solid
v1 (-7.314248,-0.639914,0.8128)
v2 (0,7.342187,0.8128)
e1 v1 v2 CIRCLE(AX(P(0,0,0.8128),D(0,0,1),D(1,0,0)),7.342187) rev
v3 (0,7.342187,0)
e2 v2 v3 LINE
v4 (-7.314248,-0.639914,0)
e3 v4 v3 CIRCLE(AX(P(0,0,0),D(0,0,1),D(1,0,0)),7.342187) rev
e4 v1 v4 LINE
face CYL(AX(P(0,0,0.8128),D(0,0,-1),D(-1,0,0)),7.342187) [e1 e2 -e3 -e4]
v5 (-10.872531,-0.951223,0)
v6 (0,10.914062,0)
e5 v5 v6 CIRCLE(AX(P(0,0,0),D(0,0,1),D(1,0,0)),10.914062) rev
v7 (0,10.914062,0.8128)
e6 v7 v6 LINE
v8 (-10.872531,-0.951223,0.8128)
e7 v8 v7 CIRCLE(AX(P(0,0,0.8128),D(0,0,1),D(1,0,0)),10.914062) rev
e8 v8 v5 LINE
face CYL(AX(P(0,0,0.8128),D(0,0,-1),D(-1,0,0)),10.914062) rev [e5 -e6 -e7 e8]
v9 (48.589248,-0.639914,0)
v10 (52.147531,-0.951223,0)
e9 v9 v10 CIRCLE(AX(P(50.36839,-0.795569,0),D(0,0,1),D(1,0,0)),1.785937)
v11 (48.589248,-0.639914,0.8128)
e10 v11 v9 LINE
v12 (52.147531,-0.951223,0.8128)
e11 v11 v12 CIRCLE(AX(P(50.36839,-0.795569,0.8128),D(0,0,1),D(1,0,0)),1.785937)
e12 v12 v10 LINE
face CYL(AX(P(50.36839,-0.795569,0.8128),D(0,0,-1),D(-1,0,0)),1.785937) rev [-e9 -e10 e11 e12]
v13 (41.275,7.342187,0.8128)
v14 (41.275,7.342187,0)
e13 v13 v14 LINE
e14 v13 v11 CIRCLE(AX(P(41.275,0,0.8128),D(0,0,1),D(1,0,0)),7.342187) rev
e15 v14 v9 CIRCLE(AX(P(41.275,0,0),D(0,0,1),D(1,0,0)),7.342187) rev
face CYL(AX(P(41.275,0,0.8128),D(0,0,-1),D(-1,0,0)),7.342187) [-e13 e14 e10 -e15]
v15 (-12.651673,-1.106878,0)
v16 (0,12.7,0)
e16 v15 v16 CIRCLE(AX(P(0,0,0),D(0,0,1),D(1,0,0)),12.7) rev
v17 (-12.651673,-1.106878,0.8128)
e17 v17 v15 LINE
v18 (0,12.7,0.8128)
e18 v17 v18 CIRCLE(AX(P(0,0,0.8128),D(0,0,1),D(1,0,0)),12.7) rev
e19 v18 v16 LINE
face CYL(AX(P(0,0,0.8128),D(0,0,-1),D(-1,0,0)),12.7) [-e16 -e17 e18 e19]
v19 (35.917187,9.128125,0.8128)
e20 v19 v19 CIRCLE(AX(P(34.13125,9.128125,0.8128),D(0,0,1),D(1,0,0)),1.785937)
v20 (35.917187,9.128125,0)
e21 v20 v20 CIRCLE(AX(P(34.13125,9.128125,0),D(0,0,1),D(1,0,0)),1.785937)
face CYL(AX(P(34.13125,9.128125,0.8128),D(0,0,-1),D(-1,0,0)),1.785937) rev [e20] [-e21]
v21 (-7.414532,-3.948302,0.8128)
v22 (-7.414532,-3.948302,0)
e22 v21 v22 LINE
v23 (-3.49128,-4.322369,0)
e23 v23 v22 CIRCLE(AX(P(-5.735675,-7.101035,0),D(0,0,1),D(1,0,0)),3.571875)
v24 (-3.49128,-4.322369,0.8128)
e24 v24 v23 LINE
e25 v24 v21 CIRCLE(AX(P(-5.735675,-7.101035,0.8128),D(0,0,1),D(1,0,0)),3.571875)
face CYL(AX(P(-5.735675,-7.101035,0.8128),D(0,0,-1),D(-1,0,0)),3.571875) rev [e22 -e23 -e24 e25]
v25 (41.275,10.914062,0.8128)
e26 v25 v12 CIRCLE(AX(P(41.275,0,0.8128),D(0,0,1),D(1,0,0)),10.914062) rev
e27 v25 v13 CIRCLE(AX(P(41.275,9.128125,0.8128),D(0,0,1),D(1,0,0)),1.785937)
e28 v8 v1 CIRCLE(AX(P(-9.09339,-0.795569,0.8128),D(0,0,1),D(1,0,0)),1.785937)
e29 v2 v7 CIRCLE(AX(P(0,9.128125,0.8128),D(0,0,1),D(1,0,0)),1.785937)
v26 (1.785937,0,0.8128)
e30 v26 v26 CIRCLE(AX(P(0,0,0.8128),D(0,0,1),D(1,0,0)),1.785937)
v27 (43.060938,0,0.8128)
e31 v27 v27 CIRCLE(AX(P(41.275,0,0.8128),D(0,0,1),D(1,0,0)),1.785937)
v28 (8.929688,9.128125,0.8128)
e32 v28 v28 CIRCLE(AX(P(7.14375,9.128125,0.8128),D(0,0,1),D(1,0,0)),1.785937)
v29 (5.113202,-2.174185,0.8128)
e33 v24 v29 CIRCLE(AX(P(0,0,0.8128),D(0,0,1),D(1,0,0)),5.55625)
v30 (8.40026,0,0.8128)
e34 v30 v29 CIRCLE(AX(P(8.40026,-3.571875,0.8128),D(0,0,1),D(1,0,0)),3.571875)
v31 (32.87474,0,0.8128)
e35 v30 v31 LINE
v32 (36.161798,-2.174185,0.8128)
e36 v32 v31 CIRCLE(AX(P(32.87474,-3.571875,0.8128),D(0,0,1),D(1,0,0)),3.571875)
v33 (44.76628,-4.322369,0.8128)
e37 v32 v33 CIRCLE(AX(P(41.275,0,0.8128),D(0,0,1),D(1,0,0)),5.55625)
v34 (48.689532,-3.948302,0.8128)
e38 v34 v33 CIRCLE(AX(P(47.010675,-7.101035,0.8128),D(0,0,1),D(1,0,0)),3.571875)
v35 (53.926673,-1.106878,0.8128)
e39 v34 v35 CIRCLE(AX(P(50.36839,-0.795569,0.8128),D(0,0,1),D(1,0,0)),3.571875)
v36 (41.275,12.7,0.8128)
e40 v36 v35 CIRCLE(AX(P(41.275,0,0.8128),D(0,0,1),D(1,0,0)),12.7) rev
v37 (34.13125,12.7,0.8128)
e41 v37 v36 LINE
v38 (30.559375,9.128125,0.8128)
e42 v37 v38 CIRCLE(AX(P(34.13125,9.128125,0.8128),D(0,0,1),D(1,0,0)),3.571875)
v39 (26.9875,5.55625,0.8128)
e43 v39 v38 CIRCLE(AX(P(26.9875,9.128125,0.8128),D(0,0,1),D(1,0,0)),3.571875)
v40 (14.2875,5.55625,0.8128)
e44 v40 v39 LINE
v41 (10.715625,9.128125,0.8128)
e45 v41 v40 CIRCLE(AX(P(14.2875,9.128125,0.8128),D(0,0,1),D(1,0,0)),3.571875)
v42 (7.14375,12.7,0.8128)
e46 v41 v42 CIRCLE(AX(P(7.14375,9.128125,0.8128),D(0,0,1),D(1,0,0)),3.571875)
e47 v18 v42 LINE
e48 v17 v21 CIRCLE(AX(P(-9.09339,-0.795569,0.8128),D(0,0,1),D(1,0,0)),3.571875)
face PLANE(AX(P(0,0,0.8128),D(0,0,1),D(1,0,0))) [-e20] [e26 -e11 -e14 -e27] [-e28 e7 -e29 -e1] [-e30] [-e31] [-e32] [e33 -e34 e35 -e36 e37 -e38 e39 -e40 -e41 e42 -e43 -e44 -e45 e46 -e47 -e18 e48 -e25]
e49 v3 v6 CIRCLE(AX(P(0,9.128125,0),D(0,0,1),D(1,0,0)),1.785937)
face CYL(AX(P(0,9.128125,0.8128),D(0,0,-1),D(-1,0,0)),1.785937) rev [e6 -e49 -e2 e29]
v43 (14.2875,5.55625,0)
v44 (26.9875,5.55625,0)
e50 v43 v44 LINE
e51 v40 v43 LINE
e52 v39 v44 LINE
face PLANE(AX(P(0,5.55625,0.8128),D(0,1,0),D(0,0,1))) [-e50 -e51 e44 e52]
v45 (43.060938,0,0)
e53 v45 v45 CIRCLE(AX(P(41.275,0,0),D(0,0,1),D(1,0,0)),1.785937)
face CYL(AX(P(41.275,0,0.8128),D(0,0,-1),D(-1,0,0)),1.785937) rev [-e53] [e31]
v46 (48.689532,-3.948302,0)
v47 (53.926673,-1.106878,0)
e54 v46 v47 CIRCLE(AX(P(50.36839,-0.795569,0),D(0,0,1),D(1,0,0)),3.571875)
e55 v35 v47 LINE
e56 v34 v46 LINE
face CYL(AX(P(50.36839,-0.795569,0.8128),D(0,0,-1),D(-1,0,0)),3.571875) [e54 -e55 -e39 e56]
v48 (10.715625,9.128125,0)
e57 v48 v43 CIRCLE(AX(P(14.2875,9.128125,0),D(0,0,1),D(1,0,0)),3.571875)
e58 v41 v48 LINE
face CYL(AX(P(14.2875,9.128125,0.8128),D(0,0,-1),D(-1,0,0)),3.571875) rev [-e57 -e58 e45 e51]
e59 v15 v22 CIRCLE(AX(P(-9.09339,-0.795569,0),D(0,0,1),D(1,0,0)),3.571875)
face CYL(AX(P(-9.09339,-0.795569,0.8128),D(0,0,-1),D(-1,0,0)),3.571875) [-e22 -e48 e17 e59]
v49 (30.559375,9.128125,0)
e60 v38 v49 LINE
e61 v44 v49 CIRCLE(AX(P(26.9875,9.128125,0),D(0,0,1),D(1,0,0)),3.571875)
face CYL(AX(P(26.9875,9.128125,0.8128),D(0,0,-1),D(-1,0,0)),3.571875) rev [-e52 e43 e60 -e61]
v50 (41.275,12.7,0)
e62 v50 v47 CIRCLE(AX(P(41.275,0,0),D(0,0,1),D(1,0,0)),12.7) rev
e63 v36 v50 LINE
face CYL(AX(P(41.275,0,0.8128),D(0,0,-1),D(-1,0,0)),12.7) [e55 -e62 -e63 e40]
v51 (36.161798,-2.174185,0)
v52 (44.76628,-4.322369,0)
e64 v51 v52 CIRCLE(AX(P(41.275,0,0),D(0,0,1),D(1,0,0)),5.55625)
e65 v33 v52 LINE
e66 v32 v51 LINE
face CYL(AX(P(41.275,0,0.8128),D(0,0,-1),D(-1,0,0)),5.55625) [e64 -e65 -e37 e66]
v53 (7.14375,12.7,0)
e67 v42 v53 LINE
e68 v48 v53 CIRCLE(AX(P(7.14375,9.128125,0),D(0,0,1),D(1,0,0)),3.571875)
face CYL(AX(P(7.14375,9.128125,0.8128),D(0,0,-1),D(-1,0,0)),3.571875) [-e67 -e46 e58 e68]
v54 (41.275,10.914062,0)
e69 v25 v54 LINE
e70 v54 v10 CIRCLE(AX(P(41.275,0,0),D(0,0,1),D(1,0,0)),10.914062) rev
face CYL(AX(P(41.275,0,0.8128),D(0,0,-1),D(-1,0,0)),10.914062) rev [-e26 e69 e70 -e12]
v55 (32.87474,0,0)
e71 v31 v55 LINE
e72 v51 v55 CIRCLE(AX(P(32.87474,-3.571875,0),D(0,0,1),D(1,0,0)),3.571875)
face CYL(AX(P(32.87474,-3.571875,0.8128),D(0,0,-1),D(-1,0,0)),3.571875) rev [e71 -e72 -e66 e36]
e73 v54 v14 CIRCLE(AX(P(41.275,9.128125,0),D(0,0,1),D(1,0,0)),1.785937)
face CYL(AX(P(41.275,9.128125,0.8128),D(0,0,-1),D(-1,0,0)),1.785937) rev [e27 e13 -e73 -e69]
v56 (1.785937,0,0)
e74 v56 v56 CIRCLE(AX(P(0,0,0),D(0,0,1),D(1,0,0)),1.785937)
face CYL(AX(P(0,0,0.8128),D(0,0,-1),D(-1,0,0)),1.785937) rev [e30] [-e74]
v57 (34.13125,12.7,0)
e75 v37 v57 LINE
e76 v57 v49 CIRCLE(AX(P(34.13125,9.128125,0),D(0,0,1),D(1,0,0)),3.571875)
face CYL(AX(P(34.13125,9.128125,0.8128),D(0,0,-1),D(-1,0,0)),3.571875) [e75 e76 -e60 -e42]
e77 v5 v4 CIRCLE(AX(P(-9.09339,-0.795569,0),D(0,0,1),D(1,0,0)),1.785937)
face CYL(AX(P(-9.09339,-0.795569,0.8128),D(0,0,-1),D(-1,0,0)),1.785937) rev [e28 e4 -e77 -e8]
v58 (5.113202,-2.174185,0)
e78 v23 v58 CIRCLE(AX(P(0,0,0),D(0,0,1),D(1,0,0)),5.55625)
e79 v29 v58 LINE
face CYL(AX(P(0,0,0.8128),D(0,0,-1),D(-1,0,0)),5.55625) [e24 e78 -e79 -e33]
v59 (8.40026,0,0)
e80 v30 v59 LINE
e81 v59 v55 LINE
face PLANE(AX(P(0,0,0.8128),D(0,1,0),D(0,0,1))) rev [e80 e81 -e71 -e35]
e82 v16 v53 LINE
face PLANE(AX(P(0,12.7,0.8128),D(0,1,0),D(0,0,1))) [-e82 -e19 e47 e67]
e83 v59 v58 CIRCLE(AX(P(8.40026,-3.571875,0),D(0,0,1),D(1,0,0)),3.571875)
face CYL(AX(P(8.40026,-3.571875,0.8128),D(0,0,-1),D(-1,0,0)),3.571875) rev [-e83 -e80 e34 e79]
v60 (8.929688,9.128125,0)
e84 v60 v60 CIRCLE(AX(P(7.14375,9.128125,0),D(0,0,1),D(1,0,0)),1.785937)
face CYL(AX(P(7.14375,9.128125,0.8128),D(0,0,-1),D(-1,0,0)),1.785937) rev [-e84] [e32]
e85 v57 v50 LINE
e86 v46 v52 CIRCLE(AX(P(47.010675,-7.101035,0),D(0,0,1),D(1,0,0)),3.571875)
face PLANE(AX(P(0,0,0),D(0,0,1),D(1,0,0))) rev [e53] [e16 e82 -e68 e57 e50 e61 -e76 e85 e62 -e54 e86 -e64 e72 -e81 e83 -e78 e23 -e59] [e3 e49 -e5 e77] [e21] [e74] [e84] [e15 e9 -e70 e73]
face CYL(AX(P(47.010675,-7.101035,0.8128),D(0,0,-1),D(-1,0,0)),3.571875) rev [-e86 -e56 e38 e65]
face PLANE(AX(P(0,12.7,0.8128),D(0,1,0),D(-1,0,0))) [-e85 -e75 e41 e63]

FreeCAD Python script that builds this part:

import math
import FreeCAD as App
import Part
import Sketcher

V = App.Vector
Q = App.Units.Quantity

doc = App.newDocument("Part")
params = doc.addObject("Spreadsheet::Sheet", "Params")
for row, (alias, value) in enumerate([
    ("sketch1_radius", "0.5 in"),
    ("sketch1_diameter", "0.140625 in"),
    ("sketch1_width", "0.5 in"),
    ("sketch1_radius2", "0.140625 in"),
    ("sketch1_radius3", "0.21875 in"),
    ("pad1_length", "0.032 in"),
], start=1):
    params.set(f"A{row}", alias)
    params.set(f"B{row}", "=" + value)
    params.setAlias(f"B{row}", alias)

body = doc.addObject("PartDesign::Body", "Body")

# Sketch on XY plane
sketch1 = doc.addObject("Sketcher::SketchObject", "Sketch")
body.addObject(sketch1)
sketch1.AttachmentSupport = (doc.XY_Plane, [""])
sketch1.MapMode = "FlatFace"
sketch1.addGeometry(Part.ArcOfCircle(Part.Circle(V(8.4, -3.6, 0), V(0, 0, 1), 3.6), math.radians(90), math.radians(157)), False)
sketch1.addGeometry(Part.LineSegment(V(8.4, 0, 0), V(32.9, 0, 0)), False)
sketch1.addGeometry(Part.ArcOfCircle(Part.Circle(V(32.9, -3.6, 0), V(0, 0, 1), 3.6), math.radians(23), math.radians(90)), False)
sketch1.addGeometry(Part.ArcOfCircle(Part.Circle(V(41.3, 0, 0), V(0, 0, 1), 5.6), math.radians(-157), math.radians(-51)), False)
sketch1.addGeometry(Part.ArcOfCircle(Part.Circle(V(47, -7.1, 0), V(0, 0, 1), 3.6), math.radians(62), math.radians(129)), False)
sketch1.addGeometry(Part.ArcOfCircle(Part.Circle(V(50.4, -0.8, 0), V(0, 0, 1), 3.6), math.radians(-118), math.radians(-5)), False)
sketch1.addGeometry(Part.ArcOfCircle(Part.Circle(V(41.3, 0, 0), V(0, 0, 1), 12.7), math.radians(-5), math.radians(90)), False)
sketch1.addGeometry(Part.LineSegment(V(41.3, 12.7, 0), V(34.1, 12.7, 0)), False)
sketch1.addGeometry(Part.ArcOfCircle(Part.Circle(V(34.1, 9.1, 0), V(0, 0, 1), 3.6), math.radians(90), math.radians(180)), False)
sketch1.addGeometry(Part.ArcOfCircle(Part.Circle(V(27, 9.1, 0), V(0, 0, 1), 3.6), math.radians(-90), math.radians(0)), False)
sketch1.addGeometry(Part.LineSegment(V(27, 5.6, 0), V(14.3, 5.6, 0)), False)
sketch1.addGeometry(Part.ArcOfCircle(Part.Circle(V(14.3, 9.1, 0), V(0, 0, 1), 3.6), math.radians(180), math.radians(270)), False)
sketch1.addGeometry(Part.ArcOfCircle(Part.Circle(V(7.1, 9.1, 0), V(0, 0, 1), 3.6), math.radians(0), math.radians(90)), False)
sketch1.addGeometry(Part.LineSegment(V(7.1, 12.7, 0), V(0, 12.7, 0)), False)
sketch1.addGeometry(Part.ArcOfCircle(Part.Circle(V(0, 0, 0), V(0, 0, 1), 12.7), math.radians(90), math.radians(185)), False)
sketch1.addGeometry(Part.ArcOfCircle(Part.Circle(V(-9.1, -0.8, 0), V(0, 0, 1), 3.6), math.radians(-175), math.radians(-62)), False)
sketch1.addGeometry(Part.ArcOfCircle(Part.Circle(V(-5.7, -7.1, 0), V(0, 0, 1), 3.6), math.radians(51), math.radians(118)), False)
sketch1.addGeometry(Part.ArcOfCircle(Part.Circle(V(0, 0, 0), V(0, 0, 1), 5.6), math.radians(-129), math.radians(-23)), False)
sketch1.addGeometry(Part.Circle(V(0, 0, 0), V(0, 0, 1), 1.8), False)
sketch1.addGeometry(Part.Circle(V(41.3, 0, 0), V(0, 0, 1), 1.8), False)
sketch1.addGeometry(Part.ArcOfCircle(Part.Circle(V(41.3, 0, 0), V(0, 0, 1), 10.9), math.radians(-5), math.radians(90)), False)
sketch1.addGeometry(Part.ArcOfCircle(Part.Circle(V(50.4, -0.8, 0), V(0, 0, 1), 1.8), math.radians(175), math.radians(355)), False)
sketch1.addGeometry(Part.ArcOfCircle(Part.Circle(V(41.3, 0, 0), V(0, 0, 1), 7.3), math.radians(-5), math.radians(90)), False)
sketch1.addGeometry(Part.ArcOfCircle(Part.Circle(V(41.3, 9.1, 0), V(0, 0, 1), 1.8), math.radians(90), math.radians(270)), False)
sketch1.addGeometry(Part.ArcOfCircle(Part.Circle(V(0, 0, 0), V(0, 0, 1), 10.9), math.radians(90), math.radians(185)), False)
sketch1.addGeometry(Part.ArcOfCircle(Part.Circle(V(0, 9.1, 0), V(0, 0, 1), 1.8), math.radians(-90), math.radians(90)), False)
sketch1.addGeometry(Part.ArcOfCircle(Part.Circle(V(0, 0, 0), V(0, 0, 1), 7.3), math.radians(90), math.radians(185)), False)
sketch1.addGeometry(Part.ArcOfCircle(Part.Circle(V(-9.1, -0.8, 0), V(0, 0, 1), 1.8), math.radians(-175), math.radians(5)), False)
sketch1.addGeometry(Part.Circle(V(7.1, 9.1, 0), V(0, 0, 1), 1.8), False)
sketch1.addGeometry(Part.Circle(V(34.1, 9.1, 0), V(0, 0, 1), 1.8), False)
sketch1.addConstraint(Sketcher.Constraint("Tangent", 0, 1, 1, 1))
sketch1.addConstraint(Sketcher.Constraint("Tangent", 1, 2, 2, 2))
sketch1.addConstraint(Sketcher.Constraint("Tangent", 2, 1, 3, 1))
sketch1.addConstraint(Sketcher.Constraint("Tangent", 3, 2, 4, 2))
sketch1.addConstraint(Sketcher.Constraint("Tangent", 4, 1, 5, 1))
sketch1.addConstraint(Sketcher.Constraint("Tangent", 5, 2, 6, 1))
sketch1.addConstraint(Sketcher.Constraint("Tangent", 6, 2, 7, 1))
sketch1.addConstraint(Sketcher.Constraint("Tangent", 7, 2, 8, 1))
sketch1.addConstraint(Sketcher.Constraint("Tangent", 8, 2, 9, 2))
sketch1.addConstraint(Sketcher.Constraint("Tangent", 9, 1, 10, 1))
sketch1.addConstraint(Sketcher.Constraint("Tangent", 10, 2, 11, 2))
sketch1.addConstraint(Sketcher.Constraint("Tangent", 11, 1, 12, 1))
sketch1.addConstraint(Sketcher.Constraint("Tangent", 12, 2, 13, 1))
sketch1.addConstraint(Sketcher.Constraint("Tangent", 13, 2, 14, 1))
sketch1.addConstraint(Sketcher.Constraint("Tangent", 14, 2, 15, 1))
sketch1.addConstraint(Sketcher.Constraint("Tangent", 15, 2, 16, 2))
sketch1.addConstraint(Sketcher.Constraint("Tangent", 16, 1, 17, 1))
sketch1.addConstraint(Sketcher.Constraint("Tangent", 17, 2, 0, 2))
sketch1.addConstraint(Sketcher.Constraint("Tangent", 20, 1, 21, 2))
sketch1.addConstraint(Sketcher.Constraint("Tangent", 21, 1, 22, 1))
sketch1.addConstraint(Sketcher.Constraint("Tangent", 22, 2, 23, 2))
sketch1.addConstraint(Sketcher.Constraint("Tangent", 23, 1, 20, 2))
sketch1.addConstraint(Sketcher.Constraint("Tangent", 24, 1, 25, 2))
sketch1.addConstraint(Sketcher.Constraint("Tangent", 25, 1, 26, 1))
sketch1.addConstraint(Sketcher.Constraint("Tangent", 26, 2, 27, 2))
sketch1.addConstraint(Sketcher.Constraint("Tangent", 27, 1, 24, 2))
sketch1.addConstraint(Sketcher.Constraint("Horizontal", 1))
sketch1.addConstraint(Sketcher.Constraint("Horizontal", 7))
sketch1.addConstraint(Sketcher.Constraint("Horizontal", 10))
sketch1.addConstraint(Sketcher.Constraint("Horizontal", 13))
sketch1.addConstraint(Sketcher.Constraint("Coincident", 14, 3, -1, 1))
sketch1.addConstraint(Sketcher.Constraint("Coincident", 17, 3, -1, 1))
sketch1.addConstraint(Sketcher.Constraint("Coincident", 18, 3, -1, 1))
sketch1.addConstraint(Sketcher.Constraint("Coincident", 24, 3, -1, 1))
sketch1.addConstraint(Sketcher.Constraint("Coincident", 26, 3, -1, 1))
sketch1.addConstraint(Sketcher.Constraint("Coincident", 6, 3, 3, 3))
sketch1.addConstraint(Sketcher.Constraint("Coincident", 19, 3, 3, 3))
sketch1.addConstraint(Sketcher.Constraint("Coincident", 20, 3, 3, 3))
sketch1.addConstraint(Sketcher.Constraint("Coincident", 21, 3, 5, 3))
sketch1.addConstraint(Sketcher.Constraint("Coincident", 22, 3, 3, 3))
sketch1.addConstraint(Sketcher.Constraint("Coincident", 27, 3, 15, 3))
sketch1.addConstraint(Sketcher.Constraint("Coincident", 28, 3, 12, 3))
sketch1.addConstraint(Sketcher.Constraint("Coincident", 29, 3, 8, 3))
sketch1.addConstraint(Sketcher.Constraint("Equal", 0, 2))
sketch1.addConstraint(Sketcher.Constraint("Equal", 2, 4))
sketch1.addConstraint(Sketcher.Constraint("Equal", 4, 5))
sketch1.addConstraint(Sketcher.Constraint("Equal", 5, 8))
sketch1.addConstraint(Sketcher.Constraint("Equal", 8, 9))
sketch1.addConstraint(Sketcher.Constraint("Equal", 9, 11))
sketch1.addConstraint(Sketcher.Constraint("Equal", 11, 12))
sketch1.addConstraint(Sketcher.Constraint("Equal", 6, 14))
sketch1.addConstraint(Sketcher.Constraint("Equal", 12, 15))
sketch1.addConstraint(Sketcher.Constraint("Equal", 15, 16))
sketch1.addConstraint(Sketcher.Constraint("Equal", 3, 17))
sketch1.addConstraint(Sketcher.Constraint("Equal", 18, 19))
sketch1.addConstraint(Sketcher.Constraint("Equal", 19, 21))
sketch1.addConstraint(Sketcher.Constraint("Equal", 20, 24))
sketch1.addConstraint(Sketcher.Constraint("Equal", 27, 28))
sketch1.addConstraint(Sketcher.Constraint("Equal", 28, 29))
sketch1.addConstraint(Sketcher.Constraint("PointOnObject", 3, 3, -1))
sketch1.addConstraint(Sketcher.Constraint("PointOnObject", 25, 3, -2))
sketch1.addConstraint(Sketcher.Constraint("PointOnObject", 0, 1, -1))
sketch1.addConstraint(Sketcher.Constraint("Horizontal", 8, 3, 9, 3))
sketch1.addConstraint(Sketcher.Constraint("Horizontal", 5, 3, 15, 3))
sketch1.addConstraint(Sketcher.Constraint("Vertical", 22, 3, 23, 3))
sketch1.addConstraint(Sketcher.Constraint("Equal", 7, 13))
sketch1.addConstraint(Sketcher.Constraint("Radius", 6, Q("0.5 in")))
sketch1.addConstraint(Sketcher.Constraint("Diameter", 18, Q("0.140625 in")))
sketch1.addConstraint(Sketcher.Constraint("DistanceX", 10, 2, 10, 1, Q("0.5 in")))
sketch1.addConstraint(Sketcher.Constraint("Radius", 0, Q("0.140625 in")))
sketch1.addConstraint(Sketcher.Constraint("Radius", 3, Q("0.21875 in")))
sketch1.addConstraint(Sketcher.Constraint("DistanceX", 7, 2, 7, 1, Q("0.28125 in")))
sketch1.addConstraint(Sketcher.Constraint("DistanceY", 4, 1, -1, 1, Q("3.948302 mm")))
sketch1.setExpression("Constraints[66]", "Params.sketch1_radius")
sketch1.setExpression("Constraints[67]", "Params.sketch1_diameter")
sketch1.setExpression("Constraints[68]", "Params.sketch1_width")
sketch1.setExpression("Constraints[69]", "Params.sketch1_radius2")
sketch1.setExpression("Constraints[70]", "Params.sketch1_radius3")
pad1 = doc.addObject("PartDesign::Pad", "Pad")
body.addObject(pad1)
pad1.Profile = sketch1
pad1.setExpression("Length", "Params.pad1_length")

doc.recompute()
